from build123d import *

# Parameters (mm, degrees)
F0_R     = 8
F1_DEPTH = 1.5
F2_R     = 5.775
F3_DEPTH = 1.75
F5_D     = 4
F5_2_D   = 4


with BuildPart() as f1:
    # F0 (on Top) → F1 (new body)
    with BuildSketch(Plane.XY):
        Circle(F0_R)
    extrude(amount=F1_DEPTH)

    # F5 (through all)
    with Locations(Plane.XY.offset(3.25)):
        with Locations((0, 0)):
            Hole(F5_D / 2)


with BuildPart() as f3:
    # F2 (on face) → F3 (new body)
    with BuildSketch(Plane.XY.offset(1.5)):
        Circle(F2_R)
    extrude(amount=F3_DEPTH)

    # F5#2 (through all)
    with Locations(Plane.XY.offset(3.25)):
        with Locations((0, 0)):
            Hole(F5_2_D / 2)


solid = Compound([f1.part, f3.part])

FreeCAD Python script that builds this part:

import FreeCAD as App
import Part
import Sketcher

V = App.Vector
Q = App.Units.Quantity

doc = App.newDocument("Part")
body = doc.addObject("PartDesign::Body", "Body")

# Sketch on XY plane
sketch1 = body.newObject("Sketcher::SketchObject", "Sketch")
sketch1.AttachmentSupport = (doc.getObject("XY_Plane"), [""])
sketch1.MapMode = "FlatFace"
sketch1.addGeometry(Part.Circle(V(0, 0, 0), V(0, 0, 1), 8), False)
sketch1.addConstraint([
    Sketcher.Constraint("Coincident", 0, 3, -1, 1),
    Sketcher.Constraint("Diameter", 0, Q("16 mm")),
])
pad1 = body.newObject("PartDesign::Pad", "Pad")
pad1.Profile = sketch1
pad1.Length = 1.5

# Sketch on XY plane
sketch2 = body.newObject("Sketcher::SketchObject", "Sketch001")
sketch2.AttachmentSupport = (doc.getObject("XY_Plane"), [""])
sketch2.MapMode = "FlatFace"
sketch2.AttachmentOffset = App.Placement(V(0, 0, 3.25), App.Rotation())
sketch2.addGeometry(Part.Circle(V(0, 0, 0), V(0, 0, 1), 2), False)
sketch2.addConstraint([
    Sketcher.Constraint("Coincident", 0, 3, -1, 1),
    Sketcher.Constraint("Diameter", 0, Q("4 mm")),
])
doc.recompute()
hole = body.newObject("PartDesign::Hole", "Hole")
hole.Profile = sketch2
hole.ThreadType = "None"
hole.Diameter = 4
hole.DepthType = "ThroughAll"
body2 = doc.addObject("PartDesign::Body", "Body001")

# Sketch on XY plane
sketch3 = body2.newObject("Sketcher::SketchObject", "Sketch002")
sketch3.AttachmentSupport = (doc.getObject("XY_Plane001"), [""])
sketch3.MapMode = "FlatFace"
sketch3.AttachmentOffset = App.Placement(V(0, 0, 1.5), App.Rotation())
sketch3.addGeometry(Part.Circle(V(0, 0, 0), V(0, 0, 1), 6), False)
sketch3.addConstraint([
    Sketcher.Constraint("Coincident", 0, 3, -1, 1),
    Sketcher.Constraint("Diameter", 0, Q("11.55 mm")),
])
pad2 = body2.newObject("PartDesign::Pad", "Pad001")
pad2.Profile = sketch3
pad2.Length = 1.75

# Sketch on XY plane
sketch4 = body2.newObject("Sketcher::SketchObject", "Sketch003")
sketch4.AttachmentSupport = (doc.getObject("XY_Plane001"), [""])
sketch4.MapMode = "FlatFace"
sketch4.AttachmentOffset = App.Placement(V(0, 0, 3.25), App.Rotation())
sketch4.addGeometry(Part.Circle(V(0, 0, 0), V(0, 0, 1), 2), False)
sketch4.addConstraint([
    Sketcher.Constraint("Coincident", 0, 3, -1, 1),
    Sketcher.Constraint("Diameter", 0, Q("4 mm")),
])
doc.recompute()
hole2 = body2.newObject("PartDesign::Hole", "Hole001")
hole2.Profile = sketch4
hole2.ThreadType = "None"
hole2.Diameter = 4
hole2.DepthType = "ThroughAll"

doc.recompute()
